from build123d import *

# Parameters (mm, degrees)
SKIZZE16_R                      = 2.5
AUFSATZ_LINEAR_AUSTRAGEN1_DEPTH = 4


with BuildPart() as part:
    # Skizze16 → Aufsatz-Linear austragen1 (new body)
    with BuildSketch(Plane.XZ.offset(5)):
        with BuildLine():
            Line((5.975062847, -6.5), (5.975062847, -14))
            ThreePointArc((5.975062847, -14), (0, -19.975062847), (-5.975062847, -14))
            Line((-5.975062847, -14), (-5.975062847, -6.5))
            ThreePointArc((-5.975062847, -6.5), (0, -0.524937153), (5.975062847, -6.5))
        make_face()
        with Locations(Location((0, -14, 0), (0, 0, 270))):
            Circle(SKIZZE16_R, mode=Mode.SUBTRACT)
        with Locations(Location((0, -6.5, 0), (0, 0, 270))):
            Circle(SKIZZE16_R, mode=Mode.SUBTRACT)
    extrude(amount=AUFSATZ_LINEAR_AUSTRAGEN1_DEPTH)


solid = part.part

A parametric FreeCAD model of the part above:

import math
import FreeCAD as App
import Part
import Sketcher
from FreeCAD import Vector

doc = App.newDocument("Part")
params = doc.addObject("Spreadsheet::Sheet", "Params")
for row, (alias, value) in enumerate([
    ("sketch1_diameter", "5 mm"),
    ("sketch1_height", "7.5 mm"),
    ("pad1_length", "4 mm"),
], start=1):
    params.set(f"A{row}", alias)
    params.set(f"B{row}", "=" + value)
    params.setAlias(f"B{row}", alias)

body = doc.addObject("PartDesign::Body", "Body")

sketch1 = doc.addObject("Sketcher::SketchObject", "Sketch")
body.addObject(sketch1)
sketch1.AttachmentSupport = (doc.XZ_Plane, [""])
sketch1.MapMode = "FlatFace"
sketch1.AttachmentOffset = App.Placement(Vector(0, 0, 5), App.Rotation())
sketch1.addGeometry(Part.LineSegment(Vector(6, -14, 0), Vector(6, -6.5, 0)), False)
sketch1.addGeometry(Part.ArcOfCircle(Part.Circle(Vector(0, -6.5, 0), Vector(0, 0, 1), 6), math.radians(0), math.radians(180)), False)
sketch1.addGeometry(Part.LineSegment(Vector(-6, -6.5, 0), Vector(-6, -14, 0)), False)
sketch1.addGeometry(Part.ArcOfCircle(Part.Circle(Vector(0, -14, 0), Vector(0, 0, 1), 6), math.radians(180), math.radians(360)), False)
sketch1.addGeometry(Part.Circle(Vector(0, -14, 0), Vector(0, 0, 1), 2.5), False)
sketch1.addGeometry(Part.Circle(Vector(0, -6.5, 0), Vector(0, 0, 1), 2.5), False)
sketch1.addConstraint(Sketcher.Constraint("Tangent", 0, 2, 1, 1))
sketch1.addConstraint(Sketcher.Constraint("Tangent", 1, 2, 2, 1))
sketch1.addConstraint(Sketcher.Constraint("Tangent", 2, 2, 3, 1))
sketch1.addConstraint(Sketcher.Constraint("Tangent", 3, 2, 0, 1))
sketch1.addConstraint(Sketcher.Constraint("Vertical", 0))
sketch1.addConstraint(Sketcher.Constraint("Vertical", 2))
sketch1.addConstraint(Sketcher.Constraint("Coincident", 4, 3, 3, 3))
sketch1.addConstraint(Sketcher.Constraint("Coincident", 5, 3, 1, 3))
sketch1.addConstraint(Sketcher.Constraint("Equal", 4, 5))
sketch1.addConstraint(Sketcher.Constraint("PointOnObject", 1, 3, -2))
sketch1.addConstraint(Sketcher.Constraint("Diameter", 4, 5.0))
sketch1.addConstraint(Sketcher.Constraint("DistanceY", 0, 1, 0, 2, 7.5))
sketch1.addConstraint(Sketcher.Constraint("DistanceY", 3, 3, -1, 1, 14.0))
sketch1.addConstraint(Sketcher.Constraint("Radius", 1, 5.975063))
sketch1.setExpression("Constraints[10]", "Params.sketch1_diameter")
sketch1.setExpression("Constraints[11]", "Params.sketch1_height")
pad1 = doc.addObject("PartDesign::Pad", "Pad")
body.addObject(pad1)
pad1.Profile = sketch1
pad1.setExpression("Length", "Params.pad1_length")

doc.recompute()
